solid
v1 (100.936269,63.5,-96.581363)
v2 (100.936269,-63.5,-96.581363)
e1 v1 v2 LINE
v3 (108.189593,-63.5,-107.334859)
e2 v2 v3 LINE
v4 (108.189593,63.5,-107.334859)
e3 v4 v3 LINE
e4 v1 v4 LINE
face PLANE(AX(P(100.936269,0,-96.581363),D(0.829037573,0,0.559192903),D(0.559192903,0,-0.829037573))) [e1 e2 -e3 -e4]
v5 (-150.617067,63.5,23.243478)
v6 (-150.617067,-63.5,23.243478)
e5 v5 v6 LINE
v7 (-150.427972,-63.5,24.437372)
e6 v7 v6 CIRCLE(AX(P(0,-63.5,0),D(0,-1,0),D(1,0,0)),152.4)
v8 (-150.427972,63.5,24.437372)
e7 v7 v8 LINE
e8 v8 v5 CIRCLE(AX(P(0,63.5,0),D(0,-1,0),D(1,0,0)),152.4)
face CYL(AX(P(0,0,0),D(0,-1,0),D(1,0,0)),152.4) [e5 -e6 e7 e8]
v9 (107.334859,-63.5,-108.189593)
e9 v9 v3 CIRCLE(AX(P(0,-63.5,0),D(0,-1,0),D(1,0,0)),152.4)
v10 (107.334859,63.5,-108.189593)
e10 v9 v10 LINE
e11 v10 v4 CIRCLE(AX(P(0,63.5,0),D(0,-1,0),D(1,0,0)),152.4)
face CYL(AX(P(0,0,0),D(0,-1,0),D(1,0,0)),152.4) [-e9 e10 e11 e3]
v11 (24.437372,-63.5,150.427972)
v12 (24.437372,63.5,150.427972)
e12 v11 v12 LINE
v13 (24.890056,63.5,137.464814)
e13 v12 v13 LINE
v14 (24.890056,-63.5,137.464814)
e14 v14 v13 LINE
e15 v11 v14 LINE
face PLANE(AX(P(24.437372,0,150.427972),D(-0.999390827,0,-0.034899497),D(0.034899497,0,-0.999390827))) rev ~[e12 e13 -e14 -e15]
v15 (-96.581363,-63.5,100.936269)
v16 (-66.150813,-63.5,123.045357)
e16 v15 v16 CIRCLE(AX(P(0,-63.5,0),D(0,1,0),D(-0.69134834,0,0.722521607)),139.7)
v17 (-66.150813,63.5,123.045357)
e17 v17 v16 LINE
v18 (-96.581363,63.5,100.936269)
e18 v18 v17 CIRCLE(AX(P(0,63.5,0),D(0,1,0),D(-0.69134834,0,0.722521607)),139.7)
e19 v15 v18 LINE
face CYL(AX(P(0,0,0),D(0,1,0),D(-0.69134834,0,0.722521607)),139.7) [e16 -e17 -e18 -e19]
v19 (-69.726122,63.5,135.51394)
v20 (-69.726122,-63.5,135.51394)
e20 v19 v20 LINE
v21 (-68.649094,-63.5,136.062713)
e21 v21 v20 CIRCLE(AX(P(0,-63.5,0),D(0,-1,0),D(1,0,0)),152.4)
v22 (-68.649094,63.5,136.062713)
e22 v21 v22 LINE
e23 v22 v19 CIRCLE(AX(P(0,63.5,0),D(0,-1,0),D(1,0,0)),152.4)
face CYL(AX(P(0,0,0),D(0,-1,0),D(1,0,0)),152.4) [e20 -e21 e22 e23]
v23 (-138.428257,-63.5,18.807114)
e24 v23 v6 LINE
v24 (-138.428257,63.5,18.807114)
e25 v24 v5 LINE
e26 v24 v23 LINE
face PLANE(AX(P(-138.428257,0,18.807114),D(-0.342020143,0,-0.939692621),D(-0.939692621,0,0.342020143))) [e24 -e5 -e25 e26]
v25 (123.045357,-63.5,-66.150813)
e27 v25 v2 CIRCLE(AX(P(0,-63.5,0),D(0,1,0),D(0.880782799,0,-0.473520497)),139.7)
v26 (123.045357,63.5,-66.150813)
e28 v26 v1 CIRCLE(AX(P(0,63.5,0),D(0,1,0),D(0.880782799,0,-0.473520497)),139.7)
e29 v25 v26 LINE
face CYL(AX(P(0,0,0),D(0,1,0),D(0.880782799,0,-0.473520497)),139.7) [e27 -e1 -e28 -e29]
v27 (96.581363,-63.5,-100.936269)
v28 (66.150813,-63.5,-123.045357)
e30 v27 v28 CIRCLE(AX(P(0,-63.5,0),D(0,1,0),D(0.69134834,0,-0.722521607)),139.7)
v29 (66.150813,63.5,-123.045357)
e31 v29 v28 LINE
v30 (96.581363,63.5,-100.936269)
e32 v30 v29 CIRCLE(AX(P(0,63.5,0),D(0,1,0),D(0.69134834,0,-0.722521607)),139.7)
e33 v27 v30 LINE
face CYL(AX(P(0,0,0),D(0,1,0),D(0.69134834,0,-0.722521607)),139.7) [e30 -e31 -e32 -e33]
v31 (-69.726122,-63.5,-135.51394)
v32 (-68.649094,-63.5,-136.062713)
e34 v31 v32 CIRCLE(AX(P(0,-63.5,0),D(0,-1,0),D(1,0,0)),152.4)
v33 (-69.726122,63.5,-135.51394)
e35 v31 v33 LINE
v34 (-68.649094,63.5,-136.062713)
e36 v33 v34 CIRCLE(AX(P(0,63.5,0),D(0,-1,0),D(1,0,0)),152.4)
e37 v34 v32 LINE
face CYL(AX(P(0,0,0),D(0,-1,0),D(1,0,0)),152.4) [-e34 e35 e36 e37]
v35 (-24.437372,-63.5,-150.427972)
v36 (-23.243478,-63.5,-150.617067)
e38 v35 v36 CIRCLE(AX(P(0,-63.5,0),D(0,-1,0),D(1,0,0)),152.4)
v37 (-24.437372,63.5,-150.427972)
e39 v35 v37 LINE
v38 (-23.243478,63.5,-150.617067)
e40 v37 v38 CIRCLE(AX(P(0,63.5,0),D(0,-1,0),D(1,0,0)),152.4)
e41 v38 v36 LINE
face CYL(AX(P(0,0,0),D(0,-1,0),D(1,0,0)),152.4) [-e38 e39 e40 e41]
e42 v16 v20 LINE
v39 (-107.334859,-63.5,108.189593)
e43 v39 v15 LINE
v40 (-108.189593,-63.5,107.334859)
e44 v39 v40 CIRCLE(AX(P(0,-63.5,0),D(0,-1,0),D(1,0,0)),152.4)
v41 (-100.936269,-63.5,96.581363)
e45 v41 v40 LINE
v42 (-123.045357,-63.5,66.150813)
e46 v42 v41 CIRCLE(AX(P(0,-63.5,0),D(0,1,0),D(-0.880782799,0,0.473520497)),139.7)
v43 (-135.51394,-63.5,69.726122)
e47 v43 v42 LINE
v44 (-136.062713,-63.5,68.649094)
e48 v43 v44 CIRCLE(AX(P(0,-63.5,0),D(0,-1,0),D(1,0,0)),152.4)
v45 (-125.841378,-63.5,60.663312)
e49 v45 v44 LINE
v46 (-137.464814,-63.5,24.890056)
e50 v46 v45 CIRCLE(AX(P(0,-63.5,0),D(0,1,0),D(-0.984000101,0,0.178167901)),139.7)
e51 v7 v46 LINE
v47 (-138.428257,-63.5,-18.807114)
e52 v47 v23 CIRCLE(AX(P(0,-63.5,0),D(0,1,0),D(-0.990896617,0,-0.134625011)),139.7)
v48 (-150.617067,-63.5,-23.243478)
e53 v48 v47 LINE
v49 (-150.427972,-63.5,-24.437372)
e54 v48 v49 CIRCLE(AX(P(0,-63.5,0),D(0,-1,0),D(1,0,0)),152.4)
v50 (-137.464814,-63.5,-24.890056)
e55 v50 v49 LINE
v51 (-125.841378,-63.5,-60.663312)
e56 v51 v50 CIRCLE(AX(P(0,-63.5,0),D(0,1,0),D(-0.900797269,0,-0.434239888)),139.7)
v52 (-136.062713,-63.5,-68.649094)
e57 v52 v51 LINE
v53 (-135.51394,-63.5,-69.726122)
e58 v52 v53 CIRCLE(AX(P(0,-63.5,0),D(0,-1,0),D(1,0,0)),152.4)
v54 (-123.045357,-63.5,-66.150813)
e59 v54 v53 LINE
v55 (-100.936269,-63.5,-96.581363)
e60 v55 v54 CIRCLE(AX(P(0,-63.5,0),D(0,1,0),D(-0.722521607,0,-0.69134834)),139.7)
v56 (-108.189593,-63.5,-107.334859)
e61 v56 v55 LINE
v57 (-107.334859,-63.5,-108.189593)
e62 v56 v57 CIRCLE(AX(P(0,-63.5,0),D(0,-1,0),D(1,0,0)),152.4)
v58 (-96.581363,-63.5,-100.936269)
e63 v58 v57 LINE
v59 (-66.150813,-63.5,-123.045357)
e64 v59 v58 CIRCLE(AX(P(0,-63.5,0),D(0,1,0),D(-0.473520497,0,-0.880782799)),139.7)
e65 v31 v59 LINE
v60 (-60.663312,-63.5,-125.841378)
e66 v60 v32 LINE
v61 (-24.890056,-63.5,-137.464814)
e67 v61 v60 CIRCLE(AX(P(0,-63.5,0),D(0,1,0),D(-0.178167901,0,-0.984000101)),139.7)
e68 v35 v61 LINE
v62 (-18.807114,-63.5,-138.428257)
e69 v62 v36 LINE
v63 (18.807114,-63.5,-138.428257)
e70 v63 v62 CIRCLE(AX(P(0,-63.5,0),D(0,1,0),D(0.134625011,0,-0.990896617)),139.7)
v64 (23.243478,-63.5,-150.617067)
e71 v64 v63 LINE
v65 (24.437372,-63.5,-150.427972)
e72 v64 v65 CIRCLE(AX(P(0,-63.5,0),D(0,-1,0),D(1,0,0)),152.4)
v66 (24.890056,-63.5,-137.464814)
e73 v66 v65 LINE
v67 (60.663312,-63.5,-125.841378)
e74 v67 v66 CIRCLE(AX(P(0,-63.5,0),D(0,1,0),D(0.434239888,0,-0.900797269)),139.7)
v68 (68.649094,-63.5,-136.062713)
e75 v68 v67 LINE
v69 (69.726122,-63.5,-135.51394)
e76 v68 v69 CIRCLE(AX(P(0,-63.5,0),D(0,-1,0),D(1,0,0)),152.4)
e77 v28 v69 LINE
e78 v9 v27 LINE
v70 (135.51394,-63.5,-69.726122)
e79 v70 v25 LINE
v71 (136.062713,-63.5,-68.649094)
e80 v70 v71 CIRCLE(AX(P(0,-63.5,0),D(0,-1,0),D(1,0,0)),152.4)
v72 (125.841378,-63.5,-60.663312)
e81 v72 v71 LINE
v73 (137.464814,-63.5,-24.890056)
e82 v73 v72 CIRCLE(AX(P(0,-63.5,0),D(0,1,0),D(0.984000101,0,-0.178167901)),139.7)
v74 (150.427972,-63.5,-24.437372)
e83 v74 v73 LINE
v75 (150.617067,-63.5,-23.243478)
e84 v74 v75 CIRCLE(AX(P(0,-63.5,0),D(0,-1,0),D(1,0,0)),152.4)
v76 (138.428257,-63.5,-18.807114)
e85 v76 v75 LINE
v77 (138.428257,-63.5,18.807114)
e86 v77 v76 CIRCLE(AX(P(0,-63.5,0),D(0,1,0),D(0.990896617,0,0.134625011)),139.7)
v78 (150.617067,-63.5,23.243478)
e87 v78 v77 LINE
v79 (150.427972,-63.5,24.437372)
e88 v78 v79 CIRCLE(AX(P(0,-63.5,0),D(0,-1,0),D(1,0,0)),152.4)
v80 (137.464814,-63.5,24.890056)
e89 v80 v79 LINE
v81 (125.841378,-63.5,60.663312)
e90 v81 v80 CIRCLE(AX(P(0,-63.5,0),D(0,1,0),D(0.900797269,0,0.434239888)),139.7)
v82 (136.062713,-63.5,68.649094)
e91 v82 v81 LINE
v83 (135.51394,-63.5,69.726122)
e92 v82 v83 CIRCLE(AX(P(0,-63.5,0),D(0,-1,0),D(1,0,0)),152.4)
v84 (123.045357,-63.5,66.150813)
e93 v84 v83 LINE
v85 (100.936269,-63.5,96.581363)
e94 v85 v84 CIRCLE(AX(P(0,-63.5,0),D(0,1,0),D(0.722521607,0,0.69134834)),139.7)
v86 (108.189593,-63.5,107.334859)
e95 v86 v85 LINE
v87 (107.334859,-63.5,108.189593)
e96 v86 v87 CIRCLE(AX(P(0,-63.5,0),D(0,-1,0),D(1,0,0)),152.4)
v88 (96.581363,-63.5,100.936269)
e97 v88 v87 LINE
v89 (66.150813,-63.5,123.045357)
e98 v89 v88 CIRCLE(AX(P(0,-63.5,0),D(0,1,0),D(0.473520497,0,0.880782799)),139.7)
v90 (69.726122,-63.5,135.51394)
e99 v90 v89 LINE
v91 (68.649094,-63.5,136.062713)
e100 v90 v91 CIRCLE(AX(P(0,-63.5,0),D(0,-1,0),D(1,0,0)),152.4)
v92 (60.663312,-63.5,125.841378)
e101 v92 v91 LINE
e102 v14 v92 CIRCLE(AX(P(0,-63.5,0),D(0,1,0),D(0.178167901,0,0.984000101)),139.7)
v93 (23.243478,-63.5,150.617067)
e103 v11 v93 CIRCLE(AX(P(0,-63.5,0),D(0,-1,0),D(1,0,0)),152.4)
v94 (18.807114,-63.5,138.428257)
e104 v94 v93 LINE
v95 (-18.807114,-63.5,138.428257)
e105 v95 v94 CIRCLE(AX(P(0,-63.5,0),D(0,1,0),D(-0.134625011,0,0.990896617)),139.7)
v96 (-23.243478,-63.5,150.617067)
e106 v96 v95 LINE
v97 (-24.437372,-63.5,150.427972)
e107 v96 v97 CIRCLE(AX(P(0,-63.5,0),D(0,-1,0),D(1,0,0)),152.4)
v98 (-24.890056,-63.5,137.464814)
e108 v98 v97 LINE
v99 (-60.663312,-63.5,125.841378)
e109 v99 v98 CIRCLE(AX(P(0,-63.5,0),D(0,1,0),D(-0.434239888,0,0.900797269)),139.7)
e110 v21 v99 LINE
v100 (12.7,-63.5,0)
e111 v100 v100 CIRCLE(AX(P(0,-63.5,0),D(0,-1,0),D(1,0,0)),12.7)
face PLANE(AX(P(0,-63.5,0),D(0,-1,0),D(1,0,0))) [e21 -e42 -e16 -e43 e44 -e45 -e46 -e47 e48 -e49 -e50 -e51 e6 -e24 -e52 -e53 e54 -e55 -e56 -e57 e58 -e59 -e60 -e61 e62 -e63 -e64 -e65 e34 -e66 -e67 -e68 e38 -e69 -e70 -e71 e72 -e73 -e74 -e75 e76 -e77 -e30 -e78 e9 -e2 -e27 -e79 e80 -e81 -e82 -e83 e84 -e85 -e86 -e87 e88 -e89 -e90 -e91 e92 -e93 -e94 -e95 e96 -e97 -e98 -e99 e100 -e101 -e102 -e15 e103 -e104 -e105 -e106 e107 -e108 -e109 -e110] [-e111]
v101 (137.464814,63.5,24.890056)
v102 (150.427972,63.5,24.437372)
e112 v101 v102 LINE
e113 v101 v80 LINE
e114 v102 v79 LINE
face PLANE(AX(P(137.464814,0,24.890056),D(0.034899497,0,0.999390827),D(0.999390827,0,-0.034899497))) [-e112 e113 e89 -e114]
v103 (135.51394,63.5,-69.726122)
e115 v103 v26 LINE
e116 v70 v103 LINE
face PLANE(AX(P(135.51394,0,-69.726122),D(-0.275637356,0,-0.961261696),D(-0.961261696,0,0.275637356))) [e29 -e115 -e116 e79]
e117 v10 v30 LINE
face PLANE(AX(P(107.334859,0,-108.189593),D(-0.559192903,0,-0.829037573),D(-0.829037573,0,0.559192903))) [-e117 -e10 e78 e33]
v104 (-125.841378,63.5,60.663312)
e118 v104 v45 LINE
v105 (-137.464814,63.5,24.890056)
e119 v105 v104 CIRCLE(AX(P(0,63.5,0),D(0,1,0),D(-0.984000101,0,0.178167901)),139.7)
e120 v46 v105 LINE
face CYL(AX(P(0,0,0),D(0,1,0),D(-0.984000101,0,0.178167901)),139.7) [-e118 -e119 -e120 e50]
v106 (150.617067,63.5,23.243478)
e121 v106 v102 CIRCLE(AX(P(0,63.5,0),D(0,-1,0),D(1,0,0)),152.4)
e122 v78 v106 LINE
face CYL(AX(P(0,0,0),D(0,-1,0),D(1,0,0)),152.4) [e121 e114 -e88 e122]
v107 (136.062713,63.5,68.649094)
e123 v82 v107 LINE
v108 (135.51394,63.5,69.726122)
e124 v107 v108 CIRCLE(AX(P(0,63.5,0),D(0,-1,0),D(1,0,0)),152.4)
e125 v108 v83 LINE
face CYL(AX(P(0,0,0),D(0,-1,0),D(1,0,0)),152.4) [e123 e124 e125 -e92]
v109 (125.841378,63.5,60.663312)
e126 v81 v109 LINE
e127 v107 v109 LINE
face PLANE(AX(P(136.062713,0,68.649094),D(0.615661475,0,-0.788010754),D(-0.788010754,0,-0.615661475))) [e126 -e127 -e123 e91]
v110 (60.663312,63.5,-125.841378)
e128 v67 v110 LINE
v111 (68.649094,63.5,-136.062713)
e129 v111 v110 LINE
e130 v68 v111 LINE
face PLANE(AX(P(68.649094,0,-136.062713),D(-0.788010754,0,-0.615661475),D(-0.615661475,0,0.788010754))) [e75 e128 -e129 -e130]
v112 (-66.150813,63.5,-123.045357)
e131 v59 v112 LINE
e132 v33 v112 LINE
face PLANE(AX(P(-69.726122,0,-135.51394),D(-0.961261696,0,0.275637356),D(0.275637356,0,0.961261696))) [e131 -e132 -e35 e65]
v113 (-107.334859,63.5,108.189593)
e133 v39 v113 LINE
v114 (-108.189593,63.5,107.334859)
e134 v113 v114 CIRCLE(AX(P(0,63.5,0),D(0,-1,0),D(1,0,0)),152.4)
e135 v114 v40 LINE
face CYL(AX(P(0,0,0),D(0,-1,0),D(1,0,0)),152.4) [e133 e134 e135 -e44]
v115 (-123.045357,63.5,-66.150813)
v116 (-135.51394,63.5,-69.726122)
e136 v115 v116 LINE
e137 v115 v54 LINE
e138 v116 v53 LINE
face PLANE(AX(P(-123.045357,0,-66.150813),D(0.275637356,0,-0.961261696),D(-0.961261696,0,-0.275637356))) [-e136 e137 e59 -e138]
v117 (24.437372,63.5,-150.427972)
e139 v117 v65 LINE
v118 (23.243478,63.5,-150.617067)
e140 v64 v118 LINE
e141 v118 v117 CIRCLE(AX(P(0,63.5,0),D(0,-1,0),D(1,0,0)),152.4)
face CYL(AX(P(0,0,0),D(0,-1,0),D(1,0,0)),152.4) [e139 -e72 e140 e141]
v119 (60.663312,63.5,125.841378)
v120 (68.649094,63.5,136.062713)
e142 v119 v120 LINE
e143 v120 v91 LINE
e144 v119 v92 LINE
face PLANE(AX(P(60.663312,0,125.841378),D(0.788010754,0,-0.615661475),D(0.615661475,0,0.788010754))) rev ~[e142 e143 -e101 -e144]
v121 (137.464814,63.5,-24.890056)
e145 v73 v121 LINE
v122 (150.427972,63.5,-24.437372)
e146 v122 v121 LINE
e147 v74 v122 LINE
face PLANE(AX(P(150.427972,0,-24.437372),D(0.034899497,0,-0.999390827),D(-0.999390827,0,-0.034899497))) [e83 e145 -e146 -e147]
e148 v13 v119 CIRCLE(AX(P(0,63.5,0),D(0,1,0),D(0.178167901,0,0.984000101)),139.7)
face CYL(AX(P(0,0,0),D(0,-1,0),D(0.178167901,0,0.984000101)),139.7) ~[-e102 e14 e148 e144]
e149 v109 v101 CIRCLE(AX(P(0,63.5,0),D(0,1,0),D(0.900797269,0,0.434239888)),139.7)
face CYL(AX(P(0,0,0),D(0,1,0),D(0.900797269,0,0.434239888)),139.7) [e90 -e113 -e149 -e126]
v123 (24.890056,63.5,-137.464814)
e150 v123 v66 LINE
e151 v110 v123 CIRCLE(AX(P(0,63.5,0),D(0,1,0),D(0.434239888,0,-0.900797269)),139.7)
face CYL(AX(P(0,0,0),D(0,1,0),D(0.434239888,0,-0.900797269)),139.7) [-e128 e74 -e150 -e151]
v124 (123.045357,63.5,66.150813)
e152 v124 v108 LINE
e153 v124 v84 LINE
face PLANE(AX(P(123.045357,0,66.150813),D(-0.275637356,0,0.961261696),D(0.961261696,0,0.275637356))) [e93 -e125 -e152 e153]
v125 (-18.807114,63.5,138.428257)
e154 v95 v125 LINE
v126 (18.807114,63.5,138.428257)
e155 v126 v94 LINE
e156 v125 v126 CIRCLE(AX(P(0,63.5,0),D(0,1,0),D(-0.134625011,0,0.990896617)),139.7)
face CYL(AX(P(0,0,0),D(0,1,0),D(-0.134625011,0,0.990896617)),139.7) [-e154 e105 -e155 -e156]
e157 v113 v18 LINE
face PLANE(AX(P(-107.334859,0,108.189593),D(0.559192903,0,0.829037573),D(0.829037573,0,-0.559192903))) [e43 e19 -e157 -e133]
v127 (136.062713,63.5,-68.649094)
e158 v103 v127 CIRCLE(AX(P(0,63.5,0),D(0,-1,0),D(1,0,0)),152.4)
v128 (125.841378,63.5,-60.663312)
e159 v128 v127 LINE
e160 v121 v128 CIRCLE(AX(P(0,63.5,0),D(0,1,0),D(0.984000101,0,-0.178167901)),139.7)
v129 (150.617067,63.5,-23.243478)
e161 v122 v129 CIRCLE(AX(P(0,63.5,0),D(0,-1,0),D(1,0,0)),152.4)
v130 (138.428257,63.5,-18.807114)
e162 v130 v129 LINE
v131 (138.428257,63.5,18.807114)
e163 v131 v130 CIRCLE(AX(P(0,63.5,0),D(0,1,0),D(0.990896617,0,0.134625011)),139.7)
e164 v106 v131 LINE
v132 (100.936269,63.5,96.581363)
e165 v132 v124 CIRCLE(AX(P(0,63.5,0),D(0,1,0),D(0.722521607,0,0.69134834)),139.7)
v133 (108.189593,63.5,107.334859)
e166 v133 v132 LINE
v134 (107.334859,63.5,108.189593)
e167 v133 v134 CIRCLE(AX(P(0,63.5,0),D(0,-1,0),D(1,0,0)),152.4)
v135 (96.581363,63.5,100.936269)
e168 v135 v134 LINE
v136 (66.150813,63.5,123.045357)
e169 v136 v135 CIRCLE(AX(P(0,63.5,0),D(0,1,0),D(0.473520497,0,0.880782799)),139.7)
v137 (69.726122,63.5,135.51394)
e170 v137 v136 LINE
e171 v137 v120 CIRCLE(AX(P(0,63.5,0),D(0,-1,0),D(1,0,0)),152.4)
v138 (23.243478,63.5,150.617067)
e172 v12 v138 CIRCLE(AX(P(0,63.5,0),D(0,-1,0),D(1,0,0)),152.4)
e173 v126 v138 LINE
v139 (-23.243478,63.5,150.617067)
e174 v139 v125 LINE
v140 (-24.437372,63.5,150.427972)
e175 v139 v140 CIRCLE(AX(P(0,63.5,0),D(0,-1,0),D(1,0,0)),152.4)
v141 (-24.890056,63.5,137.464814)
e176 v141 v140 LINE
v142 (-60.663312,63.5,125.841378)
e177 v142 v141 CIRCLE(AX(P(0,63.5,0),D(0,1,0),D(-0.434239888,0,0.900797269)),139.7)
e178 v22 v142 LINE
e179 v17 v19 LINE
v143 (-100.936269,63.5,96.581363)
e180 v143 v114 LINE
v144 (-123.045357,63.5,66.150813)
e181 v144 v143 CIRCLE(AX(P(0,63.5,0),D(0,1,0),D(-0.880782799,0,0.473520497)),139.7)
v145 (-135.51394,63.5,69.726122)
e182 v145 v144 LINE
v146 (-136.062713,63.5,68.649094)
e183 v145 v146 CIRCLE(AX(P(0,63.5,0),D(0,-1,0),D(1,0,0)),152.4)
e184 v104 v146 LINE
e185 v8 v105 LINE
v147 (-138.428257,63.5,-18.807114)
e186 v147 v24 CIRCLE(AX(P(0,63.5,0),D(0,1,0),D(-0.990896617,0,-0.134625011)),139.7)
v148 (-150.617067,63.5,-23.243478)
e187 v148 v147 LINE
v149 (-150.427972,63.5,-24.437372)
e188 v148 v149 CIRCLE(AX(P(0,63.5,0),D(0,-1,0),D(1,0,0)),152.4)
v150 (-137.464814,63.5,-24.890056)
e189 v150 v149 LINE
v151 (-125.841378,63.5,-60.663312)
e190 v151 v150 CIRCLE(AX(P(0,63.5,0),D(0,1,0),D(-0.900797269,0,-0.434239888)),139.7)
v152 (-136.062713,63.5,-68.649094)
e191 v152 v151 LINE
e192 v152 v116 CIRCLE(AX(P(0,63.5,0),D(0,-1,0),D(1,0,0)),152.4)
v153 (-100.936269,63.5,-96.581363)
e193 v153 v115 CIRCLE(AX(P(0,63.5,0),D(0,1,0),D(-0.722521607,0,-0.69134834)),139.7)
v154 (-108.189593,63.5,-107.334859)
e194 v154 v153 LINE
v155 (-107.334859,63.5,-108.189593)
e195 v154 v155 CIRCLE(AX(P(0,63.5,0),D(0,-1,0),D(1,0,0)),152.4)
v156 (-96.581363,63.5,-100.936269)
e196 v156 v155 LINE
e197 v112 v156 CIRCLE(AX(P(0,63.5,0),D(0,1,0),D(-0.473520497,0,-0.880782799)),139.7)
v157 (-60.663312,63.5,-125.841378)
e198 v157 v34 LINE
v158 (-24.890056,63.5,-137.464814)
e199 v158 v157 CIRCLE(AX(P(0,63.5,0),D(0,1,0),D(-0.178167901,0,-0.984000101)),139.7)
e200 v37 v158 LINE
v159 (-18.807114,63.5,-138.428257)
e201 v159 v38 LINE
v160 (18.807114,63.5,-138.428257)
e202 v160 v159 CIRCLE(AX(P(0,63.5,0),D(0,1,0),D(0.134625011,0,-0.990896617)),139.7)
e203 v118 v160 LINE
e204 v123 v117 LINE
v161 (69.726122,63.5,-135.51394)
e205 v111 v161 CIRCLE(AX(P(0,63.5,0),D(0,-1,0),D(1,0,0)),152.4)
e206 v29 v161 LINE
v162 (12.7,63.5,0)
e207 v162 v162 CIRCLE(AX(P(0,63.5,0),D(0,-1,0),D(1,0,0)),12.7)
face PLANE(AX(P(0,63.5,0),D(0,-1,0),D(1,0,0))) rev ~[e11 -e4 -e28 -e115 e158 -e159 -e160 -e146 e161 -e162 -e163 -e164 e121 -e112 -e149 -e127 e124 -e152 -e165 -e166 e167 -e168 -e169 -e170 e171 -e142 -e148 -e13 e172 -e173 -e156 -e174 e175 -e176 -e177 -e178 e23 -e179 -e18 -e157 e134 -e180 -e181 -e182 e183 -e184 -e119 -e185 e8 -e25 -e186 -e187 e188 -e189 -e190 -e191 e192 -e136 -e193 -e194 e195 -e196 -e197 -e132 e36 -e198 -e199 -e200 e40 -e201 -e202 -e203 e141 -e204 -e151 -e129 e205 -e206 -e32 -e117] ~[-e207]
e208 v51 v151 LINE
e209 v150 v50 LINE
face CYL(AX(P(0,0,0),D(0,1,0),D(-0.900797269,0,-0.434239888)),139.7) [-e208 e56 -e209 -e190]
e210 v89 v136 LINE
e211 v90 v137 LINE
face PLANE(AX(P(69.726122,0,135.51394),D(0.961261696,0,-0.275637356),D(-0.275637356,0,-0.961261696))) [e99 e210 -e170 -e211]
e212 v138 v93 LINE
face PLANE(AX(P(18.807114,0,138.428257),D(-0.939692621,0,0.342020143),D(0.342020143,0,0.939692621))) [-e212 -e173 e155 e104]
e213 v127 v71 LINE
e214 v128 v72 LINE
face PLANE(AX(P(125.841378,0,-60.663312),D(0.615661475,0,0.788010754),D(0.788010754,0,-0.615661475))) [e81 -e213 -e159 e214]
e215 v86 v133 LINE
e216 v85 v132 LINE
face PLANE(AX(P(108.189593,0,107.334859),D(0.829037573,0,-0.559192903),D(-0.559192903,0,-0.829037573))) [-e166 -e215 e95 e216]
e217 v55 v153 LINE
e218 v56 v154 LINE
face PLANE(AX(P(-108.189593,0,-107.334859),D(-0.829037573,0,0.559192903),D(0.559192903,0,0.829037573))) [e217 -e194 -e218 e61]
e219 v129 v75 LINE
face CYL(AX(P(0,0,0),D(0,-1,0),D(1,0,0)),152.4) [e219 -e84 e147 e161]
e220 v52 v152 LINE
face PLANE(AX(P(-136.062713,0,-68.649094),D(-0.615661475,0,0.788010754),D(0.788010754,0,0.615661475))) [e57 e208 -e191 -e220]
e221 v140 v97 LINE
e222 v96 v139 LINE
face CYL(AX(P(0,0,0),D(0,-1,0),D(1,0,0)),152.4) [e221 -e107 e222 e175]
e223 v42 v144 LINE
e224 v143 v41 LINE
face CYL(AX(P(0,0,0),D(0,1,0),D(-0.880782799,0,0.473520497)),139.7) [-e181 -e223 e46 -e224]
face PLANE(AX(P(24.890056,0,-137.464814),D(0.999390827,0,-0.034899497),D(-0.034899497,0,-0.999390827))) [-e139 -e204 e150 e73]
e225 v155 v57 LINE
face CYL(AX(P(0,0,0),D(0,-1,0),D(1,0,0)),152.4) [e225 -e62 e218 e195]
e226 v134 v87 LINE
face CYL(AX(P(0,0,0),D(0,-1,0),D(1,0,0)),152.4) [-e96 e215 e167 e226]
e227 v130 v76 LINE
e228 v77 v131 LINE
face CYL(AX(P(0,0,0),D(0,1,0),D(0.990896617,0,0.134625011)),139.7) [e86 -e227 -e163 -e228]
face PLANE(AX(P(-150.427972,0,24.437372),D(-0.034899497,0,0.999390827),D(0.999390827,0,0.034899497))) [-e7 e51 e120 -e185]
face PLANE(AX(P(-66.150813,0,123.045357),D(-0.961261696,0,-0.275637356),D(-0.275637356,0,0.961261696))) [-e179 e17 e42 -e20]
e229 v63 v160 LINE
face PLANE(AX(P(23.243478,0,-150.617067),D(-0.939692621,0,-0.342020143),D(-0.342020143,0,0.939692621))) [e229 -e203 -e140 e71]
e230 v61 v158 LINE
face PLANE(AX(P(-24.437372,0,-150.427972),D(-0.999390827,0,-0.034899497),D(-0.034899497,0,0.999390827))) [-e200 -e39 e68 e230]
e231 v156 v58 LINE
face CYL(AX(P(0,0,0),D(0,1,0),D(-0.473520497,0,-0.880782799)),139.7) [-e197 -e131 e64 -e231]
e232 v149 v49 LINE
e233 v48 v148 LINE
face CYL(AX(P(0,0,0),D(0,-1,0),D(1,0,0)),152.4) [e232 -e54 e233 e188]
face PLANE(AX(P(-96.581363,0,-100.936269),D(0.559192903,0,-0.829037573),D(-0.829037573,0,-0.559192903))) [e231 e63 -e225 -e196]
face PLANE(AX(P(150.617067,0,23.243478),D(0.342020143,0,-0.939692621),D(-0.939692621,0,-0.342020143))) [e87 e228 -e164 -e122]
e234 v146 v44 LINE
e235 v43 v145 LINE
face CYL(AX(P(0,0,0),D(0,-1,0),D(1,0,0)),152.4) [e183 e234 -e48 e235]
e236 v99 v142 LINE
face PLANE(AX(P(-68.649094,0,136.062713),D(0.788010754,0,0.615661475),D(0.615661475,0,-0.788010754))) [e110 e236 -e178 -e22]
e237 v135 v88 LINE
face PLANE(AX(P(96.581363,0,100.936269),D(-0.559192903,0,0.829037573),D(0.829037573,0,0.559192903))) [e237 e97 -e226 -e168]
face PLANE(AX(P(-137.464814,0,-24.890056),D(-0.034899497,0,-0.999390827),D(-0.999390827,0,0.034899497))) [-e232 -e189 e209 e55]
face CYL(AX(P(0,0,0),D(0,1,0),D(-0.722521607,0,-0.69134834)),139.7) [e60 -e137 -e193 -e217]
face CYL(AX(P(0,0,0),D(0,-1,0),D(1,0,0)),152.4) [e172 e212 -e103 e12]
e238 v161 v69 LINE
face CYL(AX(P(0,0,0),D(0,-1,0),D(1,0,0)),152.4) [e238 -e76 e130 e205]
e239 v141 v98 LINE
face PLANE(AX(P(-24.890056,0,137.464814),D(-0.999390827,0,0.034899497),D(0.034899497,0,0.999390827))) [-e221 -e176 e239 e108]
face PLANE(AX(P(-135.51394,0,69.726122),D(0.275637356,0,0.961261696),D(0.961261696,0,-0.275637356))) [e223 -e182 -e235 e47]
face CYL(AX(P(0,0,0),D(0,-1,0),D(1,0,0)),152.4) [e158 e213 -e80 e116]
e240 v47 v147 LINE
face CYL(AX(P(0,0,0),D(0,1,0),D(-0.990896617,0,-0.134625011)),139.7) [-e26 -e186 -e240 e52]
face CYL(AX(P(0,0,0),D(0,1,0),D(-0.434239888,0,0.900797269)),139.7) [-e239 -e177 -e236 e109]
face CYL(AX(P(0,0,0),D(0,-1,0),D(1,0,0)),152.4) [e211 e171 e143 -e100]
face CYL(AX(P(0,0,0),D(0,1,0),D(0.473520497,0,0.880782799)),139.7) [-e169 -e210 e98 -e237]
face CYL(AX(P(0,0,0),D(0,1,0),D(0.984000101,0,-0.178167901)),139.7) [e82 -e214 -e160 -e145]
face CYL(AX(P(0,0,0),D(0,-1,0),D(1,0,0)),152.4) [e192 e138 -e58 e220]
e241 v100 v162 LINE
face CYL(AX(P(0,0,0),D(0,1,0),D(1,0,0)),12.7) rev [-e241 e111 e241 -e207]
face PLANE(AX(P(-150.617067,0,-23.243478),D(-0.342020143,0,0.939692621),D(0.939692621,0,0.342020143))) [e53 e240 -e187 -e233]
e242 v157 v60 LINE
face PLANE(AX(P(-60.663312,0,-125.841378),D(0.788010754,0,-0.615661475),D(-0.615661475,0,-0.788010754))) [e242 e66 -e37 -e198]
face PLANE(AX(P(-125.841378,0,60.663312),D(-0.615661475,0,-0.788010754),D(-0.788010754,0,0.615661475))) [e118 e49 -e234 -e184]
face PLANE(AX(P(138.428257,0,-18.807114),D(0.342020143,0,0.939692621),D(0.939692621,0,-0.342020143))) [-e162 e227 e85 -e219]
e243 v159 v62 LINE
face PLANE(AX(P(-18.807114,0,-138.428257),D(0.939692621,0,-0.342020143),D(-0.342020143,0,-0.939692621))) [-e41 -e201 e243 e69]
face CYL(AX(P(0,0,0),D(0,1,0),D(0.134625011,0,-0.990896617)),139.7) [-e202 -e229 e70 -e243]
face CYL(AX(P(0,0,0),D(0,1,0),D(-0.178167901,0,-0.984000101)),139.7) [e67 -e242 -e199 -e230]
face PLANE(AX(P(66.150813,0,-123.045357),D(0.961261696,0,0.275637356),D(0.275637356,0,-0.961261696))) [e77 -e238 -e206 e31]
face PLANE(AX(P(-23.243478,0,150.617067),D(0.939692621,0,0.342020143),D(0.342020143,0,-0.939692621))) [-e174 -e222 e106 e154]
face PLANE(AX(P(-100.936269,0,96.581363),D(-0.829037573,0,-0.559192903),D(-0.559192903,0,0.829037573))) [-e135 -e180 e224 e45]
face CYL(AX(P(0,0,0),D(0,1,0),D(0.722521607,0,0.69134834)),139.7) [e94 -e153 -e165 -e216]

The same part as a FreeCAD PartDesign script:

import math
import FreeCAD as App
import Part
import Sketcher
Q = App.Units.Quantity

doc = App.newDocument("Part")
params = doc.addObject("Spreadsheet::Sheet", "Params")
for row, (alias, value) in enumerate([
    ("sketch1_diameter", "12 in"),
    ("sketch1_diameter2", "1 in"),
    ("pad1_length", "5 in"),
    ("sketch2_radius", "6 in"),
    ("sketch2_radius2", "5.5 in"),
    ("pocket1_length", "5 in"),
], start=1):
    params.set(f"A{row}", alias)
    params.set(f"B{row}", "=" + value)
    params.setAlias(f"B{row}", alias)

body = doc.addObject("PartDesign::Body", "Body")

# Sketch on XZ plane
sketch1 = body.newObject("Sketcher::SketchObject", "Sketch")
sketch1.AttachmentSupport = (doc.getObject("XZ_Plane"), [""])
sketch1.MapMode = "FlatFace"
sketch1.addGeometry([
    Part.Circle(App.Vector(0, 0, 0), App.Vector(0, 0, 1), 152.4),
    Part.Circle(App.Vector(0, 0, 0), App.Vector(0, 0, 1), 12.7),
], False)
sketch1.addConstraint([
    Sketcher.Constraint("Coincident", 0, 3, -1, 1),
    Sketcher.Constraint("Coincident", 1, 3, -1, 1),
    Sketcher.Constraint("Diameter", 0, Q("12 in")),
    Sketcher.Constraint("Diameter", 1, Q("1 in")),
])
sketch1.setExpression("Constraints[2]", "Params.sketch1_diameter")
sketch1.setExpression("Constraints[3]", "Params.sketch1_diameter2")
pad1 = body.newObject("PartDesign::Pad", "Pad")
pad1.Profile = sketch1
pad1.setExpression("Length", "Params.pad1_length")
pad1.Midplane = True

# Sketch on XZ plane
sketch2 = body.newObject("Sketcher::SketchObject", "Sketch001")
sketch2.AttachmentSupport = (doc.getObject("XZ_Plane"), [""])
sketch2.MapMode = "FlatFace"
sketch2.addGeometry([
    Part.ArcOfCircle(Part.Circle(App.Vector(0, 0, 0), App.Vector(0, 0, 1), 139.7), math.radians(82.263063), math.radians(97.736937)),  # 0
    Part.LineSegment(App.Vector(18.807114, 138.428257, 0), App.Vector(23.243478, 150.617067, 0)),  # 1
    Part.ArcOfCircle(Part.Circle(App.Vector(0, 0, 0), App.Vector(0, 0, 1), 152.4), math.radians(81.227224), math.radians(98.772776)),  # 2
    Part.LineSegment(App.Vector(-23.243478, 150.617067, 0), App.Vector(-18.807114, 138.428257, 0)),  # 3
    Part.ArcOfCircle(Part.Circle(App.Vector(0, 0, 0), App.Vector(0, 0, 1), 139.7), math.radians(100.263063), math.radians(115.736937)),  # 4
    Part.LineSegment(App.Vector(-24.890056, 137.464814, 0), App.Vector(-24.437372, 150.427972, 0)),  # 5
    Part.ArcOfCircle(Part.Circle(App.Vector(0, 0, 0), App.Vector(0, 0, 1), 152.4), math.radians(99.227224), math.radians(116.772776)),  # 6
    Part.LineSegment(App.Vector(-68.649094, 136.062713, 0), App.Vector(-60.663312, 125.841378, 0)),  # 7
    Part.ArcOfCircle(Part.Circle(App.Vector(0, 0, 0), App.Vector(0, 0, 1), 139.7), math.radians(118.263063), math.radians(133.736937)),  # 8
    Part.LineSegment(App.Vector(-66.150813, 123.045357, 0), App.Vector(-69.726122, 135.51394, 0)),  # 9
    Part.ArcOfCircle(Part.Circle(App.Vector(0, 0, 0), App.Vector(0, 0, 1), 152.4), math.radians(117.227224), math.radians(134.772776)),  # 10
    Part.LineSegment(App.Vector(-107.334859, 108.189593, 0), App.Vector(-96.581363, 100.936269, 0)),  # 11
    Part.ArcOfCircle(Part.Circle(App.Vector(0, 0, 0), App.Vector(0, 0, 1), 139.7), math.radians(136.263063), math.radians(151.736937)),  # 12
    Part.LineSegment(App.Vector(-100.936269, 96.581363, 0), App.Vector(-108.189593, 107.334859, 0)),  # 13
    Part.ArcOfCircle(Part.Circle(App.Vector(0, 0, 0), App.Vector(0, 0, 1), 152.4), math.radians(135.227224), math.radians(152.772776)),  # 14
    Part.LineSegment(App.Vector(-135.51394, 69.726122, 0), App.Vector(-123.045357, 66.150813, 0)),  # 15
    Part.ArcOfCircle(Part.Circle(App.Vector(0, 0, 0), App.Vector(0, 0, 1), 139.7), math.radians(154.263063), math.radians(169.736937)),  # 16
    Part.LineSegment(App.Vector(-125.841378, 60.663312, 0), App.Vector(-136.062713, 68.649094, 0)),  # 17
    Part.ArcOfCircle(Part.Circle(App.Vector(0, 0, 0), App.Vector(0, 0, 1), 152.4), math.radians(153.227224), math.radians(170.772776)),  # 18
    Part.LineSegment(App.Vector(-150.427972, 24.437372, 0), App.Vector(-137.464814, 24.890056, 0)),  # 19
    Part.ArcOfCircle(Part.Circle(App.Vector(0, 0, 0), App.Vector(0, 0, 1), 139.7), math.radians(172.263063), math.radians(187.736937)),  # 20
    Part.LineSegment(App.Vector(-138.428257, 18.807114, 0), App.Vector(-150.617067, 23.243478, 0)),  # 21
    Part.ArcOfCircle(Part.Circle(App.Vector(0, 0, 0), App.Vector(0, 0, 1), 152.4), math.radians(171.227224), math.radians(188.772776)),  # 22
    Part.LineSegment(App.Vector(-150.617067, -23.243478, 0), App.Vector(-138.428257, -18.807114, 0)),  # 23
    Part.ArcOfCircle(Part.Circle(App.Vector(0, 0, 0), App.Vector(0, 0, 1), 139.7), math.radians(-169.736937), math.radians(-154.263063)),  # 24
    Part.LineSegment(App.Vector(-137.464814, -24.890056, 0), App.Vector(-150.427972, -24.437372, 0)),  # 25
    Part.ArcOfCircle(Part.Circle(App.Vector(0, 0, 0), App.Vector(0, 0, 1), 152.4), math.radians(-170.772776), math.radians(-153.227224)),  # 26
    Part.LineSegment(App.Vector(-136.062713, -68.649094, 0), App.Vector(-125.841378, -60.663312, 0)),  # 27
    Part.ArcOfCircle(Part.Circle(App.Vector(0, 0, 0), App.Vector(0, 0, 1), 139.7), math.radians(-151.736937), math.radians(-136.263063)),  # 28
    Part.LineSegment(App.Vector(-123.045357, -66.150813, 0), App.Vector(-135.51394, -69.726122, 0)),  # 29
    Part.ArcOfCircle(Part.Circle(App.Vector(0, 0, 0), App.Vector(0, 0, 1), 152.4), math.radians(-152.772776), math.radians(-135.227224)),  # 30
    Part.LineSegment(App.Vector(-108.189593, -107.334859, 0), App.Vector(-100.936269, -96.581363, 0)),  # 31
    Part.ArcOfCircle(Part.Circle(App.Vector(0, 0, 0), App.Vector(0, 0, 1), 139.7), math.radians(-133.736937), math.radians(-118.263063)),  # 32
    Part.LineSegment(App.Vector(-96.581363, -100.936269, 0), App.Vector(-107.334859, -108.189593, 0)),  # 33
    Part.ArcOfCircle(Part.Circle(App.Vector(0, 0, 0), App.Vector(0, 0, 1), 152.4), math.radians(-134.772776), math.radians(-117.227224)),  # 34
    Part.LineSegment(App.Vector(-69.726122, -135.51394, 0), App.Vector(-66.150813, -123.045357, 0)),  # 35
    Part.ArcOfCircle(Part.Circle(App.Vector(0, 0, 0), App.Vector(0, 0, 1), 139.7), math.radians(-115.736937), math.radians(-100.263063)),  # 36
    Part.LineSegment(App.Vector(-60.663312, -125.841378, 0), App.Vector(-68.649094, -136.062713, 0)),  # 37
    Part.ArcOfCircle(Part.Circle(App.Vector(0, 0, 0), App.Vector(0, 0, 1), 152.4), math.radians(-116.772776), math.radians(-99.227224)),  # 38
    Part.LineSegment(App.Vector(-24.437372, -150.427972, 0), App.Vector(-24.890056, -137.464814, 0)),  # 39
    Part.ArcOfCircle(Part.Circle(App.Vector(0, 0, 0), App.Vector(0, 0, 1), 139.7), math.radians(-97.736937), math.radians(-82.263063)),  # 40
    Part.LineSegment(App.Vector(-18.807114, -138.428257, 0), App.Vector(-23.243478, -150.617067, 0)),  # 41
    Part.ArcOfCircle(Part.Circle(App.Vector(0, 0, 0), App.Vector(0, 0, 1), 152.4), math.radians(-98.772776), math.radians(-81.227224)),  # 42
    Part.LineSegment(App.Vector(23.243478, -150.617067, 0), App.Vector(18.807114, -138.428257, 0)),  # 43
    Part.ArcOfCircle(Part.Circle(App.Vector(0, 0, 0), App.Vector(0, 0, 1), 139.7), math.radians(-79.736937), math.radians(-64.263063)),  # 44
    Part.LineSegment(App.Vector(24.890056, -137.464814, 0), App.Vector(24.437372, -150.427972, 0)),  # 45
    Part.ArcOfCircle(Part.Circle(App.Vector(0, 0, 0), App.Vector(0, 0, 1), 152.4), math.radians(-80.772776), math.radians(-63.227224)),  # 46
    Part.LineSegment(App.Vector(68.649094, -136.062713, 0), App.Vector(60.663312, -125.841378, 0)),  # 47
    Part.ArcOfCircle(Part.Circle(App.Vector(0, 0, 0), App.Vector(0, 0, 1), 139.7), math.radians(-61.736937), math.radians(-46.263063)),  # 48
    Part.LineSegment(App.Vector(66.150813, -123.045357, 0), App.Vector(69.726122, -135.51394, 0)),  # 49
    Part.ArcOfCircle(Part.Circle(App.Vector(0, 0, 0), App.Vector(0, 0, 1), 152.4), math.radians(-62.772776), math.radians(-45.227224)),  # 50
    Part.LineSegment(App.Vector(107.334859, -108.189593, 0), App.Vector(96.581363, -100.936269, 0)),  # 51
    Part.ArcOfCircle(Part.Circle(App.Vector(0, 0, 0), App.Vector(0, 0, 1), 139.7), math.radians(-43.736937), math.radians(-28.263063)),  # 52
    Part.LineSegment(App.Vector(100.936269, -96.581363, 0), App.Vector(108.189593, -107.334859, 0)),  # 53
    Part.ArcOfCircle(Part.Circle(App.Vector(0, 0, 0), App.Vector(0, 0, 1), 152.4), math.radians(-44.772776), math.radians(-27.227224)),  # 54
    Part.LineSegment(App.Vector(135.51394, -69.726122, 0), App.Vector(123.045357, -66.150813, 0)),  # 55
    Part.ArcOfCircle(Part.Circle(App.Vector(0, 0, 0), App.Vector(0, 0, 1), 139.7), math.radians(-25.736937), math.radians(-10.263063)),  # 56
    Part.LineSegment(App.Vector(125.841378, -60.663312, 0), App.Vector(136.062713, -68.649094, 0)),  # 57
    Part.ArcOfCircle(Part.Circle(App.Vector(0, 0, 0), App.Vector(0, 0, 1), 152.4), math.radians(-26.772776), math.radians(-9.227224)),  # 58
    Part.LineSegment(App.Vector(150.427972, -24.437372, 0), App.Vector(137.464814, -24.890056, 0)),  # 59
    Part.ArcOfCircle(Part.Circle(App.Vector(0, 0, 0), App.Vector(0, 0, 1), 139.7), math.radians(-7.736937), math.radians(7.736937)),  # 60
    Part.LineSegment(App.Vector(138.428257, -18.807114, 0), App.Vector(150.617067, -23.243478, 0)),  # 61
    Part.ArcOfCircle(Part.Circle(App.Vector(0, 0, 0), App.Vector(0, 0, 1), 152.4), math.radians(-8.772776), math.radians(8.772776)),  # 62
    Part.LineSegment(App.Vector(150.617067, 23.243478, 0), App.Vector(138.428257, 18.807114, 0)),  # 63
    Part.ArcOfCircle(Part.Circle(App.Vector(0, 0, 0), App.Vector(0, 0, 1), 139.7), math.radians(10.263063), math.radians(25.736937)),  # 64
    Part.LineSegment(App.Vector(137.464814, 24.890056, 0), App.Vector(150.427972, 24.437372, 0)),  # 65
    Part.ArcOfCircle(Part.Circle(App.Vector(0, 0, 0), App.Vector(0, 0, 1), 152.4), math.radians(9.227224), math.radians(26.772776)),  # 66
    Part.LineSegment(App.Vector(136.062713, 68.649094, 0), App.Vector(125.841378, 60.663312, 0)),  # 67
    Part.ArcOfCircle(Part.Circle(App.Vector(0, 0, 0), App.Vector(0, 0, 1), 139.7), math.radians(28.263063), math.radians(43.736937)),  # 68
    Part.LineSegment(App.Vector(123.045357, 66.150813, 0), App.Vector(135.51394, 69.726122, 0)),  # 69
    Part.ArcOfCircle(Part.Circle(App.Vector(0, 0, 0), App.Vector(0, 0, 1), 152.4), math.radians(27.227224), math.radians(44.772776)),  # 70
    Part.LineSegment(App.Vector(108.189593, 107.334859, 0), App.Vector(100.936269, 96.581363, 0)),  # 71
    Part.ArcOfCircle(Part.Circle(App.Vector(0, 0, 0), App.Vector(0, 0, 1), 139.7), math.radians(46.263063), math.radians(61.736937)),  # 72
    Part.LineSegment(App.Vector(96.581363, 100.936269, 0), App.Vector(107.334859, 108.189593, 0)),  # 73
    Part.ArcOfCircle(Part.Circle(App.Vector(0, 0, 0), App.Vector(0, 0, 1), 152.4), math.radians(45.227224), math.radians(62.772776)),  # 74
    Part.LineSegment(App.Vector(69.726122, 135.51394, 0), App.Vector(66.150813, 123.045357, 0)),  # 75
    Part.ArcOfCircle(Part.Circle(App.Vector(0, 0, 0), App.Vector(0, 0, 1), 139.7), math.radians(64.263063), math.radians(79.736937)),  # 76
    Part.LineSegment(App.Vector(60.663312, 125.841378, 0), App.Vector(68.649094, 136.062713, 0)),  # 77
    Part.ArcOfCircle(Part.Circle(App.Vector(0, 0, 0), App.Vector(0, 0, 1), 152.4), math.radians(63.227224), math.radians(80.772776)),  # 78
    Part.LineSegment(App.Vector(24.437372, 150.427972, 0), App.Vector(24.890056, 137.464814, 0)),  # 79
], False)
sketch2.addConstraint([
    Sketcher.Constraint("Coincident", 0, 1, 1, 1),
    Sketcher.Constraint("Coincident", 1, 2, 2, 1),
    Sketcher.Constraint("Coincident", 2, 2, 3, 1),
    Sketcher.Constraint("Coincident", 3, 2, 0, 2),
    Sketcher.Constraint("Coincident", 4, 1, 5, 1),
    Sketcher.Constraint("Coincident", 5, 2, 6, 1),
    Sketcher.Constraint("Coincident", 6, 2, 7, 1),
    Sketcher.Constraint("Coincident", 7, 2, 4, 2),
    Sketcher.Constraint("Coincident", 8, 1, 9, 1),
    Sketcher.Constraint("Coincident", 9, 2, 10, 1),
    Sketcher.Constraint("Coincident", 10, 2, 11, 1),
    Sketcher.Constraint("Coincident", 11, 2, 8, 2),
    Sketcher.Constraint("Coincident", 12, 1, 13, 1),
    Sketcher.Constraint("Coincident", 13, 2, 14, 1),
    Sketcher.Constraint("Coincident", 14, 2, 15, 1),
    Sketcher.Constraint("Coincident", 15, 2, 12, 2),
    Sketcher.Constraint("Coincident", 16, 1, 17, 1),
    Sketcher.Constraint("Coincident", 17, 2, 18, 1),
    Sketcher.Constraint("Coincident", 18, 2, 19, 1),
    Sketcher.Constraint("Coincident", 19, 2, 16, 2),
    Sketcher.Constraint("Coincident", 20, 1, 21, 1),
    Sketcher.Constraint("Coincident", 21, 2, 22, 1),
    Sketcher.Constraint("Coincident", 22, 2, 23, 1),
    Sketcher.Constraint("Coincident", 23, 2, 20, 2),
    Sketcher.Constraint("Coincident", 24, 1, 25, 1),
    Sketcher.Constraint("Coincident", 25, 2, 26, 1),
    Sketcher.Constraint("Coincident", 26, 2, 27, 1),
    Sketcher.Constraint("Coincident", 27, 2, 24, 2),
    Sketcher.Constraint("Coincident", 28, 1, 29, 1),
    Sketcher.Constraint("Coincident", 29, 2, 30, 1),
    Sketcher.Constraint("Coincident", 30, 2, 31, 1),
    Sketcher.Constraint("Coincident", 31, 2, 28, 2),
    Sketcher.Constraint("Coincident", 32, 1, 33, 1),
    Sketcher.Constraint("Coincident", 33, 2, 34, 1),
    Sketcher.Constraint("Coincident", 34, 2, 35, 1),
    Sketcher.Constraint("Coincident", 35, 2, 32, 2),
    Sketcher.Constraint("Coincident", 36, 1, 37, 1),
    Sketcher.Constraint("Coincident", 37, 2, 38, 1),
    Sketcher.Constraint("Coincident", 38, 2, 39, 1),
    Sketcher.Constraint("Coincident", 39, 2, 36, 2),
    Sketcher.Constraint("Coincident", 40, 1, 41, 1),
    Sketcher.Constraint("Coincident", 41, 2, 42, 1),
    Sketcher.Constraint("Coincident", 42, 2, 43, 1),
    Sketcher.Constraint("Coincident", 43, 2, 40, 2),
    Sketcher.Constraint("Coincident", 44, 1, 45, 1),
    Sketcher.Constraint("Coincident", 45, 2, 46, 1),
    Sketcher.Constraint("Coincident", 46, 2, 47, 1),
    Sketcher.Constraint("Coincident", 47, 2, 44, 2),
    Sketcher.Constraint("Coincident", 48, 1, 49, 1),
    Sketcher.Constraint("Coincident", 49, 2, 50, 1),
    Sketcher.Constraint("Coincident", 50, 2, 51, 1),
    Sketcher.Constraint("Coincident", 51, 2, 48, 2),
    Sketcher.Constraint("Coincident", 52, 1, 53, 1),
    Sketcher.Constraint("Coincident", 53, 2, 54, 1),
    Sketcher.Constraint("Coincident", 54, 2, 55, 1),
    Sketcher.Constraint("Coincident", 55, 2, 52, 2),
    Sketcher.Constraint("Coincident", 56, 1, 57, 1),
    Sketcher.Constraint("Coincident", 57, 2, 58, 1),
    Sketcher.Constraint("Coincident", 58, 2, 59, 1),
    Sketcher.Constraint("Coincident", 59, 2, 56, 2),
    Sketcher.Constraint("Coincident", 60, 1, 61, 1),
    Sketcher.Constraint("Coincident", 61, 2, 62, 1),
    Sketcher.Constraint("Coincident", 62, 2, 63, 1),
    Sketcher.Constraint("Coincident", 63, 2, 60, 2),
    Sketcher.Constraint("Coincident", 64, 1, 65, 1),
    Sketcher.Constraint("Coincident", 65, 2, 66, 1),
    Sketcher.Constraint("Coincident", 66, 2, 67, 1),
    Sketcher.Constraint("Coincident", 67, 2, 64, 2),
    Sketcher.Constraint("Coincident", 68, 1, 69, 1),
    Sketcher.Constraint("Coincident", 69, 2, 70, 1),
    Sketcher.Constraint("Coincident", 70, 2, 71, 1),
    Sketcher.Constraint("Coincident", 71, 2, 68, 2),
    Sketcher.Constraint("Coincident", 72, 1, 73, 1),
    Sketcher.Constraint("Coincident", 73, 2, 74, 1),
    Sketcher.Constraint("Coincident", 74, 2, 75, 1),
    Sketcher.Constraint("Coincident", 75, 2, 72, 2),
    Sketcher.Constraint("Coincident", 76, 1, 77, 1),
    Sketcher.Constraint("Coincident", 77, 2, 78, 1),
    Sketcher.Constraint("Coincident", 78, 2, 79, 1),
    Sketcher.Constraint("Coincident", 79, 2, 76, 2),
    Sketcher.Constraint("Coincident", 0, 3, -1, 1),
    Sketcher.Constraint("Coincident", 2, 3, -1, 1),
    Sketcher.Constraint("Coincident", 4, 3, -1, 1),
    Sketcher.Constraint("Coincident", 6, 3, -1, 1),
    Sketcher.Constraint("Coincident", 8, 3, -1, 1),
    Sketcher.Constraint("Coincident", 10, 3, -1, 1),
    Sketcher.Constraint("Coincident", 12, 3, -1, 1),
    Sketcher.Constraint("Coincident", 14, 3, -1, 1),
    Sketcher.Constraint("Coincident", 16, 3, -1, 1),
    Sketcher.Constraint("Coincident", 18, 3, -1, 1),
    Sketcher.Constraint("Coincident", 20, 3, -1, 1),
    Sketcher.Constraint("Coincident", 22, 3, -1, 1),
    Sketcher.Constraint("Coincident", 24, 3, -1, 1),
    Sketcher.Constraint("Coincident", 26, 3, -1, 1),
    Sketcher.Constraint("Coincident", 28, 3, -1, 1),
    Sketcher.Constraint("Coincident", 30, 3, -1, 1),
    Sketcher.Constraint("Coincident", 32, 3, -1, 1),
    Sketcher.Constraint("Coincident", 34, 3, -1, 1),
    Sketcher.Constraint("Coincident", 36, 3, -1, 1),
    Sketcher.Constraint("Coincident", 38, 3, -1, 1),
    Sketcher.Constraint("Coincident", 40, 3, -1, 1),
    Sketcher.Constraint("Coincident", 42, 3, -1, 1),
    Sketcher.Constraint("Coincident", 44, 3, -1, 1),
    Sketcher.Constraint("Coincident", 46, 3, -1, 1),
    Sketcher.Constraint("Coincident", 48, 3, -1, 1),
    Sketcher.Constraint("Coincident", 50, 3, -1, 1),
    Sketcher.Constraint("Coincident", 52, 3, -1, 1),
    Sketcher.Constraint("Coincident", 54, 3, -1, 1),
    Sketcher.Constraint("Coincident", 56, 3, -1, 1),
    Sketcher.Constraint("Coincident", 58, 3, -1, 1),
    Sketcher.Constraint("Coincident", 60, 3, -1, 1),
    Sketcher.Constraint("Coincident", 62, 3, -1, 1),
    Sketcher.Constraint("Coincident", 64, 3, -1, 1),
    Sketcher.Constraint("Coincident", 66, 3, -1, 1),
    Sketcher.Constraint("Coincident", 68, 3, -1, 1),
    Sketcher.Constraint("Coincident", 70, 3, -1, 1),
    Sketcher.Constraint("Coincident", 72, 3, -1, 1),
    Sketcher.Constraint("Coincident", 74, 3, -1, 1),
    Sketcher.Constraint("Coincident", 76, 3, -1, 1),
    Sketcher.Constraint("Coincident", 78, 3, -1, 1),
    Sketcher.Constraint("Equal", 0, 4),
    Sketcher.Constraint("Equal", 2, 6),
    Sketcher.Constraint("Equal", 4, 8),
    Sketcher.Constraint("Equal", 6, 10),
    Sketcher.Constraint("Equal", 8, 12),
    Sketcher.Constraint("Equal", 10, 14),
    Sketcher.Constraint("Equal", 12, 16),
    Sketcher.Constraint("Equal", 14, 18),
    Sketcher.Constraint("Equal", 16, 20),
    Sketcher.Constraint("Equal", 18, 22),
    Sketcher.Constraint("Equal", 20, 24),
    Sketcher.Constraint("Equal", 22, 26),
    Sketcher.Constraint("Equal", 24, 28),
    Sketcher.Constraint("Equal", 26, 30),
    Sketcher.Constraint("Equal", 28, 32),
    Sketcher.Constraint("Equal", 30, 34),
    Sketcher.Constraint("Equal", 32, 36),
    Sketcher.Constraint("Equal", 34, 38),
    Sketcher.Constraint("Equal", 36, 40),
    Sketcher.Constraint("Equal", 38, 42),
    Sketcher.Constraint("Equal", 40, 44),
    Sketcher.Constraint("Equal", 42, 46),
    Sketcher.Constraint("Equal", 44, 48),
    Sketcher.Constraint("Equal", 46, 50),
    Sketcher.Constraint("Equal", 48, 52),
    Sketcher.Constraint("Equal", 50, 54),
    Sketcher.Constraint("Equal", 52, 56),
    Sketcher.Constraint("Equal", 54, 58),
    Sketcher.Constraint("Equal", 56, 60),
    Sketcher.Constraint("Equal", 58, 62),
    Sketcher.Constraint("Equal", 60, 64),
    Sketcher.Constraint("Equal", 62, 66),
    Sketcher.Constraint("Equal", 64, 68),
    Sketcher.Constraint("Equal", 66, 70),
    Sketcher.Constraint("Equal", 68, 72),
    Sketcher.Constraint("Equal", 70, 74),
    Sketcher.Constraint("Equal", 72, 76),
    Sketcher.Constraint("Equal", 74, 78),
    Sketcher.Constraint("Perpendicular", 1, 21),
    Sketcher.Constraint("Perpendicular", 3, 23),
    Sketcher.Constraint("Perpendicular", 5, 25),
    Sketcher.Constraint("Perpendicular", 7, 27),
    Sketcher.Constraint("Perpendicular", 9, 29),
    Sketcher.Constraint("Perpendicular", 11, 31),
    Sketcher.Constraint("Perpendicular", 13, 33),
    Sketcher.Constraint("Perpendicular", 15, 35),
    Sketcher.Constraint("Perpendicular", 17, 37),
    Sketcher.Constraint("Perpendicular", 19, 39),
    Sketcher.Constraint("Perpendicular", 21, 41),
    Sketcher.Constraint("Perpendicular", 23, 43),
    Sketcher.Constraint("Perpendicular", 25, 45),
    Sketcher.Constraint("Perpendicular", 27, 47),
    Sketcher.Constraint("Perpendicular", 29, 49),
    Sketcher.Constraint("Perpendicular", 31, 51),
    Sketcher.Constraint("Perpendicular", 33, 53),
    Sketcher.Constraint("Perpendicular", 35, 55),
    Sketcher.Constraint("Perpendicular", 37, 57),
    Sketcher.Constraint("Perpendicular", 39, 59),
    Sketcher.Constraint("Perpendicular", 41, 61),
    Sketcher.Constraint("Perpendicular", 43, 63),
    Sketcher.Constraint("Perpendicular", 45, 65),
    Sketcher.Constraint("Perpendicular", 47, 67),
    Sketcher.Constraint("Perpendicular", 49, 69),
    Sketcher.Constraint("Perpendicular", 51, 71),
    Sketcher.Constraint("Perpendicular", 53, 73),
    Sketcher.Constraint("Perpendicular", 55, 75),
    Sketcher.Constraint("Perpendicular", 57, 77),
    Sketcher.Constraint("Perpendicular", 59, 79),
    Sketcher.Constraint("Horizontal", 1, 2, 2, 2),
    Sketcher.Constraint("Horizontal", 0, 1, 3, 2),
    Sketcher.Constraint("Horizontal", 41, 2, 42, 2),
    Sketcher.Constraint("Horizontal", 39, 2, 44, 1),
    Sketcher.Constraint("Horizontal", 38, 2, 45, 2),
    Sketcher.Constraint("Horizontal", 37, 2, 46, 2),
    Sketcher.Constraint("Horizontal", 36, 1, 47, 2),
    Sketcher.Constraint("Horizontal", 35, 2, 48, 1),
    Sketcher.Constraint("Horizontal", 34, 2, 49, 2),
    Sketcher.Constraint("Horizontal", 33, 2, 50, 2),
    Sketcher.Constraint("Horizontal", 32, 1, 51, 2),
    Sketcher.Constraint("Horizontal", 31, 2, 52, 1),
    Sketcher.Constraint("Horizontal", 29, 2, 54, 2),
    Sketcher.Constraint("Horizontal", 27, 2, 56, 1),
    Sketcher.Constraint("Horizontal", 25, 2, 58, 2),
    Sketcher.Constraint("Horizontal", 23, 2, 60, 1),
    Sketcher.Constraint("Horizontal", 21, 2, 62, 2),
    Sketcher.Constraint("Horizontal", 19, 2, 64, 1),
    Sketcher.Constraint("Horizontal", 17, 2, 66, 2),
    Sketcher.Constraint("Horizontal", 15, 2, 68, 1),
    Sketcher.Constraint("Horizontal", 13, 2, 70, 2),
    Sketcher.Constraint("Horizontal", 11, 2, 72, 1),
    Sketcher.Constraint("Horizontal", 9, 2, 74, 2),
    Sketcher.Constraint("Horizontal", 7, 2, 76, 1),
    Sketcher.Constraint("Horizontal", 5, 2, 78, 2),
    Sketcher.Constraint("Vertical", 21, 2, 22, 2),
    Sketcher.Constraint("Vertical", 19, 2, 24, 1),
    Sketcher.Constraint("Vertical", 17, 2, 26, 2),
    Sketcher.Constraint("Vertical", 15, 2, 28, 1),
    Sketcher.Constraint("Vertical", 13, 2, 30, 2),
    Sketcher.Constraint("Vertical", 11, 2, 32, 1),
    Sketcher.Constraint("Vertical", 9, 2, 34, 2),
    Sketcher.Constraint("Vertical", 7, 2, 36, 1),
    Sketcher.Constraint("Vertical", 5, 2, 38, 2),
    Sketcher.Constraint("Vertical", 3, 2, 40, 1),
    Sketcher.Constraint("Equal", 3, 5),
    Sketcher.Constraint("Equal", 5, 7),
    Sketcher.Constraint("Equal", 7, 9),
    Sketcher.Constraint("Equal", 9, 11),
    Sketcher.Constraint("Equal", 11, 13),
    Sketcher.Constraint("Equal", 13, 15),
    Sketcher.Constraint("Equal", 15, 17),
    Sketcher.Constraint("Equal", 17, 19),
    Sketcher.Constraint("Equal", 19, 21),
    Sketcher.Constraint("Radius", 2, Q("6 in")),
    Sketcher.Constraint("Radius", 0, Q("5.5 in")),
    Sketcher.Constraint("Angle", 1, Q("70 deg")),
    Sketcher.Constraint("Angle", 5, Q("88 deg")),
    Sketcher.Constraint("Angle", 7, Q("-52 deg")),
    Sketcher.Constraint("Angle", 9, Q("106 deg")),
    Sketcher.Constraint("Angle", 11, Q("-34 deg")),
    Sketcher.Constraint("DistanceY", -1, 1, 7, 2, 125.841378),
])
sketch2.setExpression("Constraints[232]", "Params.sketch2_radius")
sketch2.setExpression("Constraints[233]", "Params.sketch2_radius2")
pocket1 = body.newObject("PartDesign::Pocket", "Pocket")
pocket1.Profile = sketch2
pocket1.setExpression("Length", "Params.pocket1_length")
pocket1.Midplane = True

doc.recompute()
